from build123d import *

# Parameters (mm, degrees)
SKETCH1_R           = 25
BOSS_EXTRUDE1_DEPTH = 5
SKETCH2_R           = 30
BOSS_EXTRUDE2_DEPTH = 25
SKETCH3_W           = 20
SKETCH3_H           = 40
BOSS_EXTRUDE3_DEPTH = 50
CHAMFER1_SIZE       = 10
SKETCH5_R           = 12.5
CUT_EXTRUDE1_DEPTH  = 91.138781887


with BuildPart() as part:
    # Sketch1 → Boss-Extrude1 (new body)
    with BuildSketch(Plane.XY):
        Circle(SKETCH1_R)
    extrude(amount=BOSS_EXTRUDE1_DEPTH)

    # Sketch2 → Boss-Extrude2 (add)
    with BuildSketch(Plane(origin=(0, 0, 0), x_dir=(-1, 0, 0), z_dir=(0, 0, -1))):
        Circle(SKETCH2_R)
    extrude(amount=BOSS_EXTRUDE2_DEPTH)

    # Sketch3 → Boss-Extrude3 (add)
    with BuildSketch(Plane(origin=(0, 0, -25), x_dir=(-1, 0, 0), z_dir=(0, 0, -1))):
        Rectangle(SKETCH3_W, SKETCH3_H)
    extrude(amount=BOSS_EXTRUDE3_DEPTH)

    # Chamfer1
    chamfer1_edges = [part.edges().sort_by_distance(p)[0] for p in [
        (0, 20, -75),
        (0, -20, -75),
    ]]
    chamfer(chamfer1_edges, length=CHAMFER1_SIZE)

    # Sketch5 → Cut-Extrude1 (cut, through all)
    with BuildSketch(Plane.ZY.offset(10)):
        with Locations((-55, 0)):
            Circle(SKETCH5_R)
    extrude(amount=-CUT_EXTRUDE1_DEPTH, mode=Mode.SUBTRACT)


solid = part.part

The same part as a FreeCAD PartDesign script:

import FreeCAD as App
import Part
import Sketcher
from FreeCAD import Vector
Q = App.Units.Quantity


def edges_at(feature, points):
    """Names of the edges that pass closest to the given points."""
    edges = feature.Shape.Edges
    near = lambda p: min(range(len(edges)), key=lambda i: edges[i].distToShape(Part.Vertex(*p))[0])
    return sorted({f"Edge{near(p) + 1}" for p in points})


def add_polygon(sketch, points):
    """Adds a closed chain of lines whose ends are joined by coincident constraints."""
    first, n = sketch.GeometryCount, len(points)
    for a, b in zip(points, points[1:] + points[:1]):
        sketch.addGeometry(Part.LineSegment(App.Vector(*a, 0), App.Vector(*b, 0)), False)
    for i in range(n):
        sketch.addConstraint(Sketcher.Constraint("Coincident", first + i, 2, first + (i + 1) % n, 1))

doc = App.newDocument("Part")
params = doc.addObject("Spreadsheet::Sheet", "Params")
for row, (alias, value) in enumerate([
    ("sketch1_diameter", "50 mm"),
    ("pad1_length", "5 mm"),
    ("sketch2_diameter", "60 mm"),
    ("pad2_length", "25 mm"),
    ("sketch3_width", "20 mm"),
    ("sketch3_height", "40 mm"),
    ("pad3_length", "50 mm"),
    ("chamfer_size", "10 mm"),
    ("sketch4_diameter", "25 mm"),
], start=1):
    params.set(f"A{row}", alias)
    params.set(f"B{row}", "=" + value)
    params.setAlias(f"B{row}", alias)

body = doc.addObject("PartDesign::Body", "Body")

# Sketch on XY plane
sketch1 = body.newObject("Sketcher::SketchObject", "Sketch")
sketch1.AttachmentSupport = (doc.getObject("XY_Plane"), [""])
sketch1.MapMode = "FlatFace"
sketch1.addGeometry(Part.Circle(Vector(0, 0, 0), Vector(0, 0, 1), 25), False)
sketch1.addConstraint([
    Sketcher.Constraint("Coincident", 0, 3, -1, 1),
    Sketcher.Constraint("Diameter", 0, Q("50 mm")),
])
sketch1.setExpression("Constraints[1]", "Params.sketch1_diameter")
pad1 = body.newObject("PartDesign::Pad", "Pad")
pad1.Profile = sketch1
pad1.setExpression("Length", "Params.pad1_length")

# Sketch on XY plane
sketch2 = body.newObject("Sketcher::SketchObject", "Sketch001")
sketch2.AttachmentSupport = (doc.getObject("XY_Plane"), [""])
sketch2.MapMode = "FlatFace"
sketch2.addGeometry(Part.Circle(Vector(0, 0, 0), Vector(0, 0, 1), 30), False)
sketch2.addConstraint([
    Sketcher.Constraint("Coincident", 0, 3, -1, 1),
    Sketcher.Constraint("Diameter", 0, Q("60 mm")),
])
sketch2.setExpression("Constraints[1]", "Params.sketch2_diameter")
pad2 = body.newObject("PartDesign::Pad", "Pad001")
pad2.Profile = sketch2
pad2.setExpression("Length", "Params.pad2_length")
pad2.Reversed = True

# Sketch on XY plane
sketch3 = body.newObject("Sketcher::SketchObject", "Sketch002")
sketch3.AttachmentSupport = (doc.getObject("XY_Plane"), [""])
sketch3.MapMode = "FlatFace"
sketch3.AttachmentOffset = App.Placement(Vector(0, 0, -25), App.Rotation())
add_polygon(sketch3, [(10, 20), (10, -20), (-10, -20), (-10, 20)])  # lines 0-3
sketch3.addConstraint([
    Sketcher.Constraint("Vertical", 0),
    Sketcher.Constraint("Horizontal", 1),
    Sketcher.Constraint("Vertical", 2),
    Sketcher.Constraint("Horizontal", 3),
    Sketcher.Constraint("Symmetric", 0, 2, 2, 2, -1, 1),
    Sketcher.Constraint("DistanceX", 1, 2, 1, 1, Q("20 mm")),
    Sketcher.Constraint("DistanceY", 0, 2, 0, 1, Q("40 mm")),
])
sketch3.setExpression("Constraints[9]", "Params.sketch3_width")
sketch3.setExpression("Constraints[10]", "Params.sketch3_height")
pad3 = body.newObject("PartDesign::Pad", "Pad002")
pad3.Profile = sketch3
pad3.setExpression("Length", "Params.pad3_length")
pad3.Reversed = True
doc.recompute()

chamfer = body.newObject("PartDesign::Chamfer", "Chamfer")
chamfer.Base = (pad3, edges_at(pad3, [(0, 20, -75), (0, -20, -75)]))
chamfer.setExpression("Size", "Params.chamfer_size")

# Sketch on YZ plane
sketch4 = body.newObject("Sketcher::SketchObject", "Sketch003")
sketch4.AttachmentSupport = (doc.getObject("YZ_Plane"), [""])
sketch4.MapMode = "FlatFace"
sketch4.AttachmentOffset = App.Placement(Vector(0, 0, -10), App.Rotation())
sketch4.addGeometry(Part.Circle(Vector(0, -55, 0), Vector(0, 0, 1), 12), False)
sketch4.addConstraint([
    Sketcher.Constraint("PointOnObject", 0, 3, -2),
    Sketcher.Constraint("Diameter", 0, Q("25 mm")),
    Sketcher.Constraint("DistanceY", 0, 3, -1, 1, Q("55 mm")),
])
sketch4.setExpression("Constraints[1]", "Params.sketch4_diameter")
pocket1 = body.newObject("PartDesign::Pocket", "Pocket")
pocket1.Profile = sketch4
pocket1.Type = "ThroughAll"
pocket1.Reversed = True

doc.recompute()
